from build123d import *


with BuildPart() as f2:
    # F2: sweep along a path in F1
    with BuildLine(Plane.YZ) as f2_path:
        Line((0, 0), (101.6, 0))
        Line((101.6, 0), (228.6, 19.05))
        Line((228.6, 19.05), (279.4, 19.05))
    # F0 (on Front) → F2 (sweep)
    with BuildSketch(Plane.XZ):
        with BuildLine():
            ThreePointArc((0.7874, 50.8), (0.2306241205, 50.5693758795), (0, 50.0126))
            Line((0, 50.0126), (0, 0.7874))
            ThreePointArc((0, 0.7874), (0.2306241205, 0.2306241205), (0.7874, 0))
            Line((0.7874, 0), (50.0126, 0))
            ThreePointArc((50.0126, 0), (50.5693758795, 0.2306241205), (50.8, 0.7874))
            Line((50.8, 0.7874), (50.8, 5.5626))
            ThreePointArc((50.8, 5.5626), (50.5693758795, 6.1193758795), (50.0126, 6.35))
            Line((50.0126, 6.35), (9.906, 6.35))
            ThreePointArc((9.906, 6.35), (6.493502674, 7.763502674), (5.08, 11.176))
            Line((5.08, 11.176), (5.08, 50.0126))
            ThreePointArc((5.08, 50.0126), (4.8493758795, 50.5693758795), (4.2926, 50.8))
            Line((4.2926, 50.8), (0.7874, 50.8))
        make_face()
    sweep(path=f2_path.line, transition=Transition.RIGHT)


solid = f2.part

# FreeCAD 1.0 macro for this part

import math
import FreeCAD as App
import Part
import Sketcher

V = App.Vector
Q = App.Units.Quantity

doc = App.newDocument("Part")
body = doc.addObject("PartDesign::Body", "Body")

# Sketch on XZ plane
sketch1 = doc.addObject("Sketcher::SketchObject", "Sketch")
body.addObject(sketch1)
sketch1.AttachmentSupport = (doc.XZ_Plane, [""])
sketch1.MapMode = "FlatFace"
sketch1.addGeometry([
    Part.ArcOfCircle(Part.Circle(V(0.8, 50, 0), V(0, 0, 1), 0.8), math.radians(90), math.radians(180)),  # 0
    Part.LineSegment(V(0, 50, 0), V(0, 0.8, 0)),  # 1
    Part.ArcOfCircle(Part.Circle(V(0.8, 0.8, 0), V(0, 0, 1), 0.8), math.radians(180), math.radians(270)),  # 2
    Part.LineSegment(V(0.8, 0, 0), V(50, 0, 0)),  # 3
    Part.ArcOfCircle(Part.Circle(V(50, 0.8, 0), V(0, 0, 1), 0.8), math.radians(-90), math.radians(0)),  # 4
    Part.LineSegment(V(50.8, 0.8, 0), V(50.8, 5.6, 0)),  # 5
    Part.ArcOfCircle(Part.Circle(V(50, 5.6, 0), V(0, 0, 1), 0.8), math.radians(0), math.radians(90)),  # 6
    Part.LineSegment(V(50, 6.3, 0), V(9.9, 6.3, 0)),  # 7
    Part.ArcOfCircle(Part.Circle(V(9.9, 11.2, 0), V(0, 0, 1), 4.8), math.radians(180), math.radians(270)),  # 8
    Part.LineSegment(V(5.1, 11.2, 0), V(5.1, 50, 0)),  # 9
    Part.ArcOfCircle(Part.Circle(V(4.3, 50, 0), V(0, 0, 1), 0.8), math.radians(0), math.radians(90)),  # 10
    Part.LineSegment(V(4.3, 50.8, 0), V(0.8, 50.8, 0)),  # 11
], False)
sketch1.addConstraint([
    Sketcher.Constraint("Tangent", 0, 2, 1, 1),
    Sketcher.Constraint("Tangent", 1, 2, 2, 1),
    Sketcher.Constraint("Tangent", 2, 2, 3, 1),
    Sketcher.Constraint("Tangent", 3, 2, 4, 1),
    Sketcher.Constraint("Tangent", 4, 2, 5, 1),
    Sketcher.Constraint("Tangent", 5, 2, 6, 1),
    Sketcher.Constraint("Tangent", 6, 2, 7, 1),
    Sketcher.Constraint("Tangent", 7, 2, 8, 2),
    Sketcher.Constraint("Tangent", 8, 1, 9, 1),
    Sketcher.Constraint("Tangent", 9, 2, 10, 1),
    Sketcher.Constraint("Tangent", 10, 2, 11, 1),
    Sketcher.Constraint("Tangent", 11, 2, 0, 1),
    Sketcher.Constraint("Vertical", 1),
    Sketcher.Constraint("Horizontal", 3),
    Sketcher.Constraint("Vertical", 5),
    Sketcher.Constraint("Horizontal", 7),
    Sketcher.Constraint("Vertical", 9),
    Sketcher.Constraint("Horizontal", 11),
    Sketcher.Constraint("Equal", 0, 2),
    Sketcher.Constraint("Equal", 2, 4),
    Sketcher.Constraint("Equal", 4, 6),
    Sketcher.Constraint("Equal", 6, 10),
    Sketcher.Constraint("PointOnObject", 0, 2, -2),
    Sketcher.Constraint("PointOnObject", 2, 2, -1),
    Sketcher.Constraint("Equal", 3, 1),
    Sketcher.Constraint("Radius", 8, Q("0.19 in")),
    Sketcher.Constraint("DistanceX", -1, 1, 4, 2, Q("2 in")),
    Sketcher.Constraint("Radius", 0, Q("0.031 in")),
    Sketcher.Constraint("DistanceX", -1, 1, 8, 1, Q("0.2 in")),
    Sketcher.Constraint("DistanceY", 5, 1, 5, 2, Q("0.188 in")),
])

# Sketch on YZ plane
sketch2 = doc.addObject("Sketcher::SketchObject", "Sketch001")
body.addObject(sketch2)
sketch2.AttachmentSupport = (doc.YZ_Plane, [""])
sketch2.MapMode = "FlatFace"
sketch2.addGeometry([
    Part.LineSegment(V(0, 0, 0), V(102, 0, 0)),
    Part.LineSegment(V(102, 0, 0), V(229, 19, 0)),
    Part.LineSegment(V(229, 19, 0), V(279, 19, 0)),
], False)
sketch2.addConstraint([
    Sketcher.Constraint("Coincident", 0, 2, 1, 1),
    Sketcher.Constraint("Coincident", 1, 2, 2, 1),
    Sketcher.Constraint("Horizontal", 0),
    Sketcher.Constraint("Horizontal", 2),
    Sketcher.Constraint("Coincident", 0, 1, -1, 1),
    Sketcher.Constraint("DistanceX", 0, 1, 0, 2, Q("4 in")),
    Sketcher.Constraint("DistanceX", 2, 1, 2, 2, Q("2 in")),
    Sketcher.Constraint("DistanceX", -1, 1, 1, 2, Q("9 in")),
    Sketcher.Constraint("DistanceY", -1, 1, 1, 2, Q("0.75 in")),
])
doc.recompute()

additivepipe = doc.addObject("PartDesign::AdditivePipe", "AdditivePipe")
body.addObject(additivepipe)
additivepipe.Profile = sketch1
additivepipe.Spine = (sketch2, ["Edge1", "Edge2", "Edge3"])
additivepipe.Transition = "Right corner"

doc.recompute()
